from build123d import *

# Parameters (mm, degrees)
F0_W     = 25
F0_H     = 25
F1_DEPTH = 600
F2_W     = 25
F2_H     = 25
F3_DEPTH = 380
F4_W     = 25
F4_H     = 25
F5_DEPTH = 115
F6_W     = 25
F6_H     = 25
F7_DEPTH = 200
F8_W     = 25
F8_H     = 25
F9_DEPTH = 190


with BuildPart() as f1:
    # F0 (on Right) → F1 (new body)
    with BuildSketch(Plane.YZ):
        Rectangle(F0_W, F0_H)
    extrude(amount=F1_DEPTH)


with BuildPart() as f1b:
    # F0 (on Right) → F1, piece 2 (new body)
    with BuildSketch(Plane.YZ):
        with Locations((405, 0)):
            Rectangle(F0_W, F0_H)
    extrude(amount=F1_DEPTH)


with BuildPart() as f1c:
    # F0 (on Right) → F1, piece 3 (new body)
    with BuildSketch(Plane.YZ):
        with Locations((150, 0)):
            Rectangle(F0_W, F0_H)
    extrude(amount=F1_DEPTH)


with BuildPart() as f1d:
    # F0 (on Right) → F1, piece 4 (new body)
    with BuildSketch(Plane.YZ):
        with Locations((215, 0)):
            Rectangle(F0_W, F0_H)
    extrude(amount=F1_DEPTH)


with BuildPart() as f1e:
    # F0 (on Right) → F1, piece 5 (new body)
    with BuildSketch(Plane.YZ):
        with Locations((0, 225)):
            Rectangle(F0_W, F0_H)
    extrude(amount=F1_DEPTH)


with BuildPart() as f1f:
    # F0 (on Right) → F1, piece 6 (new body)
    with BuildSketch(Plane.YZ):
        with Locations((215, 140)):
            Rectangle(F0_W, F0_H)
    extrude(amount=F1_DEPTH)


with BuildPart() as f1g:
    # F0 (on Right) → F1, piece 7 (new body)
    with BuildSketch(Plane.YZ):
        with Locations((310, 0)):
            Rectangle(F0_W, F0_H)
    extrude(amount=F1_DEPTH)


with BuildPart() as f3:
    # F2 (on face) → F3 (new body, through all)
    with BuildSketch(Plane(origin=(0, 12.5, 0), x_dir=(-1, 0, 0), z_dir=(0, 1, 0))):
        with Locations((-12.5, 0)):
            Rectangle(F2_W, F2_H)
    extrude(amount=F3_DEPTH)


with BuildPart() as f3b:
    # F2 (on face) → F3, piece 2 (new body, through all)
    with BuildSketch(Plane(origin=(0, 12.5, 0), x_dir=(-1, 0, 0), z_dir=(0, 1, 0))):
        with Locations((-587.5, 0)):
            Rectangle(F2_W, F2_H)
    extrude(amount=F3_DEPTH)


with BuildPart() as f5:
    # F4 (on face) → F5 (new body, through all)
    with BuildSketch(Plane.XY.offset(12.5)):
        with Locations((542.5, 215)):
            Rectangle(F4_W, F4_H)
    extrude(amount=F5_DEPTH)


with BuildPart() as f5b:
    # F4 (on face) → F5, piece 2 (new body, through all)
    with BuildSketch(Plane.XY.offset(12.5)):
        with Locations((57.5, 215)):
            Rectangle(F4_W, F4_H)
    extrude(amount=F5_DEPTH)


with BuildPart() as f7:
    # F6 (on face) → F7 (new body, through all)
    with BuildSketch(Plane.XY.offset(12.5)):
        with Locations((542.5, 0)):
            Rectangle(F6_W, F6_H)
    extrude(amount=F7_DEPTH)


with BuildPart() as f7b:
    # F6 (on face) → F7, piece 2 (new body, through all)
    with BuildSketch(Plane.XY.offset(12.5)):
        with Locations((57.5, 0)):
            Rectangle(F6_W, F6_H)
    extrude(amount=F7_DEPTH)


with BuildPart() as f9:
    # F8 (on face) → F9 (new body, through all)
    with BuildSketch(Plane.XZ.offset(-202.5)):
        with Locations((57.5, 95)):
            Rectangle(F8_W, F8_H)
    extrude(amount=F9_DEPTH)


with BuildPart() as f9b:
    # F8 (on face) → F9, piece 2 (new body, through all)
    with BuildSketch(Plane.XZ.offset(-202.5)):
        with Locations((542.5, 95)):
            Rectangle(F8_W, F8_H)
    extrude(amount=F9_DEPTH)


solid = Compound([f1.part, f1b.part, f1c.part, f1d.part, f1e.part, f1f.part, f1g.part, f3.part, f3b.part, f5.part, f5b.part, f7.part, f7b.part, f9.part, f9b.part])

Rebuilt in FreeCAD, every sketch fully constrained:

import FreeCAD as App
import Part
import Sketcher
from FreeCAD import Vector
Q = App.Units.Quantity

doc = App.newDocument("Part")
body = doc.addObject("PartDesign::Body", "Body")

# Sketch on YZ plane
sketch1 = doc.addObject("Sketcher::SketchObject", "Sketch")
body.addObject(sketch1)
sketch1.AttachmentSupport = (doc.YZ_Plane, [""])
sketch1.MapMode = "FlatFace"
sketch1.addGeometry([
    Part.LineSegment(Vector(-12, 12, 0), Vector(-12, -12, 0)),
    Part.LineSegment(Vector(-12, -12, 0), Vector(12, -12, 0)),
    Part.LineSegment(Vector(12, -12, 0), Vector(12, 12, 0)),
    Part.LineSegment(Vector(12, 12, 0), Vector(-12, 12, 0)),
], False)
sketch1.addConstraint([
    Sketcher.Constraint("Coincident", 0, 2, 1, 1),
    Sketcher.Constraint("Coincident", 1, 2, 2, 1),
    Sketcher.Constraint("Coincident", 2, 2, 3, 1),
    Sketcher.Constraint("Coincident", 3, 2, 0, 1),
    Sketcher.Constraint("Vertical", 0),
    Sketcher.Constraint("Horizontal", 1),
    Sketcher.Constraint("Vertical", 2),
    Sketcher.Constraint("Horizontal", 3),
    Sketcher.Constraint("Symmetric", 0, 2, 2, 2, -1, 1),
    Sketcher.Constraint("Equal", 3, 0),
    Sketcher.Constraint("DistanceX", 1, 1, 1, 2, Q("25 mm")),
])
pad1 = doc.addObject("PartDesign::Pad", "Pad")
body.addObject(pad1)
pad1.Profile = sketch1
pad1.Length = 600
body2 = doc.addObject("PartDesign::Body", "Body001")

# Sketch on YZ plane
sketch2 = doc.addObject("Sketcher::SketchObject", "Sketch001")
body2.addObject(sketch2)
sketch2.AttachmentSupport = (doc.getObject("YZ_Plane001"), [""])
sketch2.MapMode = "FlatFace"
sketch2.addGeometry([
    Part.LineSegment(Vector(392, 12, 0), Vector(392, -12, 0)),
    Part.LineSegment(Vector(392, -12, 0), Vector(418, -12, 0)),
    Part.LineSegment(Vector(418, -12, 0), Vector(418, 12, 0)),
    Part.LineSegment(Vector(418, 12, 0), Vector(392, 12, 0)),
], False)
sketch2.addConstraint([
    Sketcher.Constraint("Coincident", 0, 2, 1, 1),
    Sketcher.Constraint("Coincident", 1, 2, 2, 1),
    Sketcher.Constraint("Coincident", 2, 2, 3, 1),
    Sketcher.Constraint("Coincident", 3, 2, 0, 1),
    Sketcher.Constraint("Vertical", 0),
    Sketcher.Constraint("Horizontal", 1),
    Sketcher.Constraint("Vertical", 2),
    Sketcher.Constraint("Horizontal", 3),
    Sketcher.Constraint("Equal", 3, 0),
    Sketcher.Constraint("DistanceX", 1, 1, 1, 2, Q("25 mm")),
    Sketcher.Constraint("DistanceX", -1, 1, 0, 2, Q("392.5 mm")),
    Sketcher.Constraint("DistanceY", 0, 2, -1, 1, Q("12.5 mm")),
])
pad2 = doc.addObject("PartDesign::Pad", "Pad001")
body2.addObject(pad2)
pad2.Profile = sketch2
pad2.Length = 600
body3 = doc.addObject("PartDesign::Body", "Body002")

# Sketch on YZ plane
sketch3 = doc.addObject("Sketcher::SketchObject", "Sketch002")
body3.addObject(sketch3)
sketch3.AttachmentSupport = (doc.getObject("YZ_Plane002"), [""])
sketch3.MapMode = "FlatFace"
sketch3.addGeometry([
    Part.LineSegment(Vector(138, 12, 0), Vector(138, -12, 0)),
    Part.LineSegment(Vector(138, -12, 0), Vector(162, -12, 0)),
    Part.LineSegment(Vector(162, -12, 0), Vector(162, 12, 0)),
    Part.LineSegment(Vector(162, 12, 0), Vector(138, 12, 0)),
], False)
sketch3.addConstraint([
    Sketcher.Constraint("Coincident", 0, 2, 1, 1),
    Sketcher.Constraint("Coincident", 1, 2, 2, 1),
    Sketcher.Constraint("Coincident", 2, 2, 3, 1),
    Sketcher.Constraint("Coincident", 3, 2, 0, 1),
    Sketcher.Constraint("Vertical", 0),
    Sketcher.Constraint("Horizontal", 1),
    Sketcher.Constraint("Vertical", 2),
    Sketcher.Constraint("Horizontal", 3),
    Sketcher.Constraint("Equal", 3, 0),
    Sketcher.Constraint("DistanceX", 1, 1, 1, 2, Q("25 mm")),
    Sketcher.Constraint("DistanceX", -1, 1, 0, 2, Q("137.5 mm")),
    Sketcher.Constraint("DistanceY", 0, 2, -1, 1, Q("12.5 mm")),
])
pad3 = doc.addObject("PartDesign::Pad", "Pad002")
body3.addObject(pad3)
pad3.Profile = sketch3
pad3.Length = 600
body4 = doc.addObject("PartDesign::Body", "Body003")

# Sketch on YZ plane
sketch4 = doc.addObject("Sketcher::SketchObject", "Sketch003")
body4.addObject(sketch4)
sketch4.AttachmentSupport = (doc.getObject("YZ_Plane003"), [""])
sketch4.MapMode = "FlatFace"
sketch4.addGeometry([
    Part.LineSegment(Vector(202, 12, 0), Vector(202, -12, 0)),
    Part.LineSegment(Vector(202, -12, 0), Vector(228, -12, 0)),
    Part.LineSegment(Vector(228, -12, 0), Vector(228, 12, 0)),
    Part.LineSegment(Vector(228, 12, 0), Vector(202, 12, 0)),
], False)
sketch4.addConstraint([
    Sketcher.Constraint("Coincident", 0, 2, 1, 1),
    Sketcher.Constraint("Coincident", 1, 2, 2, 1),
    Sketcher.Constraint("Coincident", 2, 2, 3, 1),
    Sketcher.Constraint("Coincident", 3, 2, 0, 1),
    Sketcher.Constraint("Vertical", 0),
    Sketcher.Constraint("Horizontal", 1),
    Sketcher.Constraint("Vertical", 2),
    Sketcher.Constraint("Horizontal", 3),
    Sketcher.Constraint("Equal", 3, 0),
    Sketcher.Constraint("DistanceX", 1, 1, 1, 2, Q("25 mm")),
    Sketcher.Constraint("DistanceX", -1, 1, 0, 2, Q("202.5 mm")),
    Sketcher.Constraint("DistanceY", 0, 2, -1, 1, Q("12.5 mm")),
])
pad4 = doc.addObject("PartDesign::Pad", "Pad003")
body4.addObject(pad4)
pad4.Profile = sketch4
pad4.Length = 600
body5 = doc.addObject("PartDesign::Body", "Body004")

# Sketch on YZ plane
sketch5 = doc.addObject("Sketcher::SketchObject", "Sketch004")
body5.addObject(sketch5)
sketch5.AttachmentSupport = (doc.getObject("YZ_Plane004"), [""])
sketch5.MapMode = "FlatFace"
sketch5.addGeometry([
    Part.LineSegment(Vector(-12, 238, 0), Vector(-12, 212, 0)),
    Part.LineSegment(Vector(-12, 212, 0), Vector(12, 212, 0)),
    Part.LineSegment(Vector(12, 212, 0), Vector(12, 238, 0)),
    Part.LineSegment(Vector(12, 238, 0), Vector(-12, 238, 0)),
], False)
sketch5.addConstraint([
    Sketcher.Constraint("Coincident", 0, 2, 1, 1),
    Sketcher.Constraint("Coincident", 1, 2, 2, 1),
    Sketcher.Constraint("Coincident", 2, 2, 3, 1),
    Sketcher.Constraint("Coincident", 3, 2, 0, 1),
    Sketcher.Constraint("Vertical", 0),
    Sketcher.Constraint("Horizontal", 1),
    Sketcher.Constraint("Vertical", 2),
    Sketcher.Constraint("Horizontal", 3),
    Sketcher.Constraint("Equal", 3, 0),
    Sketcher.Constraint("DistanceX", 1, 1, 1, 2, Q("25 mm")),
    Sketcher.Constraint("DistanceX", 0, 2, -1, 1, Q("12.5 mm")),
    Sketcher.Constraint("DistanceY", -1, 1, 0, 2, Q("212.5 mm")),
])
pad5 = doc.addObject("PartDesign::Pad", "Pad004")
body5.addObject(pad5)
pad5.Profile = sketch5
pad5.Length = 600
body6 = doc.addObject("PartDesign::Body", "Body005")

# Sketch on YZ plane
sketch6 = doc.addObject("Sketcher::SketchObject", "Sketch005")
body6.addObject(sketch6)
sketch6.AttachmentSupport = (doc.getObject("YZ_Plane005"), [""])
sketch6.MapMode = "FlatFace"
sketch6.addGeometry([
    Part.LineSegment(Vector(202, 152, 0), Vector(202, 128, 0)),
    Part.LineSegment(Vector(202, 128, 0), Vector(228, 128, 0)),
    Part.LineSegment(Vector(228, 128, 0), Vector(228, 152, 0)),
    Part.LineSegment(Vector(228, 152, 0), Vector(202, 152, 0)),
], False)
sketch6.addConstraint([
    Sketcher.Constraint("Coincident", 0, 2, 1, 1),
    Sketcher.Constraint("Coincident", 1, 2, 2, 1),
    Sketcher.Constraint("Coincident", 2, 2, 3, 1),
    Sketcher.Constraint("Coincident", 3, 2, 0, 1),
    Sketcher.Constraint("Vertical", 0),
    Sketcher.Constraint("Horizontal", 1),
    Sketcher.Constraint("Vertical", 2),
    Sketcher.Constraint("Horizontal", 3),
    Sketcher.Constraint("Equal", 3, 0),
    Sketcher.Constraint("DistanceX", 1, 1, 1, 2, Q("25 mm")),
    Sketcher.Constraint("DistanceX", -1, 1, 0, 2, Q("202.5 mm")),
    Sketcher.Constraint("DistanceY", -1, 1, 0, 2, Q("127.5 mm")),
])
pad6 = doc.addObject("PartDesign::Pad", "Pad005")
body6.addObject(pad6)
pad6.Profile = sketch6
pad6.Length = 600
body7 = doc.addObject("PartDesign::Body", "Body006")

# Sketch on YZ plane
sketch7 = doc.addObject("Sketcher::SketchObject", "Sketch006")
body7.addObject(sketch7)
sketch7.AttachmentSupport = (doc.getObject("YZ_Plane006"), [""])
sketch7.MapMode = "FlatFace"
sketch7.addGeometry([
    Part.LineSegment(Vector(298, 12, 0), Vector(298, -12, 0)),
    Part.LineSegment(Vector(298, -12, 0), Vector(322, -12, 0)),
    Part.LineSegment(Vector(322, -12, 0), Vector(322, 12, 0)),
    Part.LineSegment(Vector(322, 12, 0), Vector(298, 12, 0)),
], False)
sketch7.addConstraint([
    Sketcher.Constraint("Coincident", 0, 2, 1, 1),
    Sketcher.Constraint("Coincident", 1, 2, 2, 1),
    Sketcher.Constraint("Coincident", 2, 2, 3, 1),
    Sketcher.Constraint("Coincident", 3, 2, 0, 1),
    Sketcher.Constraint("Vertical", 0),
    Sketcher.Constraint("Horizontal", 1),
    Sketcher.Constraint("Vertical", 2),
    Sketcher.Constraint("Horizontal", 3),
    Sketcher.Constraint("Equal", 3, 0),
    Sketcher.Constraint("DistanceX", 1, 1, 1, 2, Q("25 mm")),
    Sketcher.Constraint("DistanceX", -1, 1, 0, 2, Q("297.5 mm")),
    Sketcher.Constraint("DistanceY", 0, 2, -1, 1, Q("12.5 mm")),
])
pad7 = doc.addObject("PartDesign::Pad", "Pad006")
body7.addObject(pad7)
pad7.Profile = sketch7
pad7.Length = 600
body8 = doc.addObject("PartDesign::Body", "Body007")

# Sketch on XZ plane
sketch8 = doc.addObject("Sketcher::SketchObject", "Sketch007")
body8.addObject(sketch8)
sketch8.AttachmentSupport = (doc.getObject("XZ_Plane007"), [""])
sketch8.MapMode = "FlatFace"
sketch8.AttachmentOffset = App.Placement(Vector(0, 0, -12.5), App.Rotation())
sketch8.addGeometry([
    Part.LineSegment(Vector(25, 12, 0), Vector(25, -12, 0)),
    Part.LineSegment(Vector(25, -12, 0), Vector(0, -12, 0)),
    Part.LineSegment(Vector(0, -12, 0), Vector(0, 12, 0)),
    Part.LineSegment(Vector(0, 12, 0), Vector(25, 12, 0)),
], False)
sketch8.addConstraint([
    Sketcher.Constraint("Coincident", 0, 2, 1, 1),
    Sketcher.Constraint("Coincident", 1, 2, 2, 1),
    Sketcher.Constraint("Coincident", 2, 2, 3, 1),
    Sketcher.Constraint("Coincident", 3, 2, 0, 1),
    Sketcher.Constraint("Vertical", 0),
    Sketcher.Constraint("Horizontal", 1),
    Sketcher.Constraint("Vertical", 2),
    Sketcher.Constraint("Horizontal", 3),
    Sketcher.Constraint("Symmetric", 1, 2, 2, 2, -1, 1),
    Sketcher.Constraint("Equal", 3, 0),
    Sketcher.Constraint("DistanceX", 1, 2, 1, 1, Q("25 mm")),
])
pad8 = doc.addObject("PartDesign::Pad", "Pad007")
body8.addObject(pad8)
pad8.Profile = sketch8
pad8.Length = 380
pad8.Reversed = True
body9 = doc.addObject("PartDesign::Body", "Body008")

# Sketch on XZ plane
sketch9 = doc.addObject("Sketcher::SketchObject", "Sketch008")
body9.addObject(sketch9)
sketch9.AttachmentSupport = (doc.getObject("XZ_Plane008"), [""])
sketch9.MapMode = "FlatFace"
sketch9.AttachmentOffset = App.Placement(Vector(0, 0, -12.5), App.Rotation())
sketch9.addGeometry([
    Part.LineSegment(Vector(600, 12, 0), Vector(600, -12, 0)),
    Part.LineSegment(Vector(600, -12, 0), Vector(575, -12, 0)),
    Part.LineSegment(Vector(575, -12, 0), Vector(575, 12, 0)),
    Part.LineSegment(Vector(575, 12, 0), Vector(600, 12, 0)),
], False)
sketch9.addConstraint([
    Sketcher.Constraint("Coincident", 0, 2, 1, 1),
    Sketcher.Constraint("Coincident", 1, 2, 2, 1),
    Sketcher.Constraint("Coincident", 2, 2, 3, 1),
    Sketcher.Constraint("Coincident", 3, 2, 0, 1),
    Sketcher.Constraint("Vertical", 0),
    Sketcher.Constraint("Horizontal", 1),
    Sketcher.Constraint("Vertical", 2),
    Sketcher.Constraint("Horizontal", 3),
    Sketcher.Constraint("Equal", 3, 0),
    Sketcher.Constraint("DistanceX", 1, 2, 1, 1, Q("25 mm")),
    Sketcher.Constraint("DistanceX", -1, 1, 0, 2, Q("600 mm")),
    Sketcher.Constraint("DistanceY", 0, 2, -1, 1, Q("12.5 mm")),
])
pad9 = doc.addObject("PartDesign::Pad", "Pad008")
body9.addObject(pad9)
pad9.Profile = sketch9
pad9.Length = 380
pad9.Reversed = True
body10 = doc.addObject("PartDesign::Body", "Body009")

# Sketch on XY plane
sketch10 = doc.addObject("Sketcher::SketchObject", "Sketch009")
body10.addObject(sketch10)
sketch10.AttachmentSupport = (doc.getObject("XY_Plane009"), [""])
sketch10.MapMode = "FlatFace"
sketch10.AttachmentOffset = App.Placement(Vector(0, 0, 12.5), App.Rotation())
sketch10.addGeometry([
    Part.LineSegment(Vector(530, 228, 0), Vector(530, 202, 0)),
    Part.LineSegment(Vector(530, 202, 0), Vector(555, 202, 0)),
    Part.LineSegment(Vector(555, 202, 0), Vector(555, 228, 0)),
    Part.LineSegment(Vector(555, 228, 0), Vector(530, 228, 0)),
], False)
sketch10.addConstraint([
    Sketcher.Constraint("Coincident", 0, 2, 1, 1),
    Sketcher.Constraint("Coincident", 1, 2, 2, 1),
    Sketcher.Constraint("Coincident", 2, 2, 3, 1),
    Sketcher.Constraint("Coincident", 3, 2, 0, 1),
    Sketcher.Constraint("Vertical", 0),
    Sketcher.Constraint("Horizontal", 1),
    Sketcher.Constraint("Vertical", 2),
    Sketcher.Constraint("Horizontal", 3),
    Sketcher.Constraint("Equal", 3, 0),
    Sketcher.Constraint("DistanceX", 1, 1, 1, 2, Q("25 mm")),
    Sketcher.Constraint("DistanceX", -1, 1, 0, 2, Q("530 mm")),
    Sketcher.Constraint("DistanceY", -1, 1, 0, 2, Q("202.5 mm")),
])
pad10 = doc.addObject("PartDesign::Pad", "Pad009")
body10.addObject(pad10)
pad10.Profile = sketch10
pad10.Length = 115
body11 = doc.addObject("PartDesign::Body", "Body010")

# Sketch on XY plane
sketch11 = doc.addObject("Sketcher::SketchObject", "Sketch010")
body11.addObject(sketch11)
sketch11.AttachmentSupport = (doc.getObject("XY_Plane010"), [""])
sketch11.MapMode = "FlatFace"
sketch11.AttachmentOffset = App.Placement(Vector(0, 0, 12.5), App.Rotation())
sketch11.addGeometry([
    Part.LineSegment(Vector(45, 228, 0), Vector(45, 202, 0)),
    Part.LineSegment(Vector(45, 202, 0), Vector(70, 202, 0)),
    Part.LineSegment(Vector(70, 202, 0), Vector(70, 228, 0)),
    Part.LineSegment(Vector(70, 228, 0), Vector(45, 228, 0)),
], False)
sketch11.addConstraint([
    Sketcher.Constraint("Coincident", 0, 2, 1, 1),
    Sketcher.Constraint("Coincident", 1, 2, 2, 1),
    Sketcher.Constraint("Coincident", 2, 2, 3, 1),
    Sketcher.Constraint("Coincident", 3, 2, 0, 1),
    Sketcher.Constraint("Vertical", 0),
    Sketcher.Constraint("Horizontal", 1),
    Sketcher.Constraint("Vertical", 2),
    Sketcher.Constraint("Horizontal", 3),
    Sketcher.Constraint("Equal", 3, 0),
    Sketcher.Constraint("DistanceX", 1, 1, 1, 2, Q("25 mm")),
    Sketcher.Constraint("DistanceX", -1, 1, 0, 2, Q("45 mm")),
    Sketcher.Constraint("DistanceY", -1, 1, 0, 2, Q("202.5 mm")),
])
pad11 = doc.addObject("PartDesign::Pad", "Pad010")
body11.addObject(pad11)
pad11.Profile = sketch11
pad11.Length = 115
body12 = doc.addObject("PartDesign::Body", "Body011")

# Sketch on XY plane
sketch12 = doc.addObject("Sketcher::SketchObject", "Sketch011")
body12.addObject(sketch12)
sketch12.AttachmentSupport = (doc.getObject("XY_Plane011"), [""])
sketch12.MapMode = "FlatFace"
sketch12.AttachmentOffset = App.Placement(Vector(0, 0, 12.5), App.Rotation())
sketch12.addGeometry([
    Part.LineSegment(Vector(530, 12, 0), Vector(530, -12, 0)),
    Part.LineSegment(Vector(530, -12, 0), Vector(555, -12, 0)),
    Part.LineSegment(Vector(555, -12, 0), Vector(555, 12, 0)),
    Part.LineSegment(Vector(555, 12, 0), Vector(530, 12, 0)),
], False)
sketch12.addConstraint([
    Sketcher.Constraint("Coincident", 0, 2, 1, 1),
    Sketcher.Constraint("Coincident", 1, 2, 2, 1),
    Sketcher.Constraint("Coincident", 2, 2, 3, 1),
    Sketcher.Constraint("Coincident", 3, 2, 0, 1),
    Sketcher.Constraint("Vertical", 0),
    Sketcher.Constraint("Horizontal", 1),
    Sketcher.Constraint("Vertical", 2),
    Sketcher.Constraint("Horizontal", 3),
    Sketcher.Constraint("Equal", 3, 0),
    Sketcher.Constraint("DistanceX", 1, 1, 1, 2, Q("25 mm")),
    Sketcher.Constraint("DistanceX", -1, 1, 0, 2, Q("530 mm")),
    Sketcher.Constraint("DistanceY", 0, 2, -1, 1, Q("12.5 mm")),
])
pad12 = doc.addObject("PartDesign::Pad", "Pad011")
body12.addObject(pad12)
pad12.Profile = sketch12
pad12.Length = 200
body13 = doc.addObject("PartDesign::Body", "Body012")

# Sketch on XY plane
sketch13 = doc.addObject("Sketcher::SketchObject", "Sketch012")
body13.addObject(sketch13)
sketch13.AttachmentSupport = (doc.getObject("XY_Plane012"), [""])
sketch13.MapMode = "FlatFace"
sketch13.AttachmentOffset = App.Placement(Vector(0, 0, 12.5), App.Rotation())
sketch13.addGeometry([
    Part.LineSegment(Vector(45, 12, 0), Vector(45, -12, 0)),
    Part.LineSegment(Vector(45, -12, 0), Vector(70, -12, 0)),
    Part.LineSegment(Vector(70, -12, 0), Vector(70, 12, 0)),
    Part.LineSegment(Vector(70, 12, 0), Vector(45, 12, 0)),
], False)
sketch13.addConstraint([
    Sketcher.Constraint("Coincident", 0, 2, 1, 1),
    Sketcher.Constraint("Coincident", 1, 2, 2, 1),
    Sketcher.Constraint("Coincident", 2, 2, 3, 1),
    Sketcher.Constraint("Coincident", 3, 2, 0, 1),
    Sketcher.Constraint("Vertical", 0),
    Sketcher.Constraint("Horizontal", 1),
    Sketcher.Constraint("Vertical", 2),
    Sketcher.Constraint("Horizontal", 3),
    Sketcher.Constraint("Equal", 3, 0),
    Sketcher.Constraint("DistanceX", 1, 1, 1, 2, Q("25 mm")),
    Sketcher.Constraint("DistanceX", -1, 1, 0, 2, Q("45 mm")),
    Sketcher.Constraint("DistanceY", 0, 2, -1, 1, Q("12.5 mm")),
])
pad13 = doc.addObject("PartDesign::Pad", "Pad012")
body13.addObject(pad13)
pad13.Profile = sketch13
pad13.Length = 200
body14 = doc.addObject("PartDesign::Body", "Body013")

# Sketch on XZ plane
sketch14 = doc.addObject("Sketcher::SketchObject", "Sketch013")
body14.addObject(sketch14)
sketch14.AttachmentSupport = (doc.getObject("XZ_Plane013"), [""])
sketch14.MapMode = "FlatFace"
sketch14.AttachmentOffset = App.Placement(Vector(0, 0, -202.5), App.Rotation())
sketch14.addGeometry([
    Part.LineSegment(Vector(45, 108, 0), Vector(45, 82, 0)),
    Part.LineSegment(Vector(45, 82, 0), Vector(70, 82, 0)),
    Part.LineSegment(Vector(70, 82, 0), Vector(70, 108, 0)),
    Part.LineSegment(Vector(70, 108, 0), Vector(45, 108, 0)),
], False)
sketch14.addConstraint([
    Sketcher.Constraint("Coincident", 0, 2, 1, 1),
    Sketcher.Constraint("Coincident", 1, 2, 2, 1),
    Sketcher.Constraint("Coincident", 2, 2, 3, 1),
    Sketcher.Constraint("Coincident", 3, 2, 0, 1),
    Sketcher.Constraint("Vertical", 0),
    Sketcher.Constraint("Horizontal", 1),
    Sketcher.Constraint("Vertical", 2),
    Sketcher.Constraint("Horizontal", 3),
    Sketcher.Constraint("Equal", 3, 0),
    Sketcher.Constraint("DistanceX", 1, 1, 1, 2, Q("25 mm")),
    Sketcher.Constraint("DistanceX", -1, 1, 0, 2, Q("45 mm")),
    Sketcher.Constraint("DistanceY", -1, 1, 0, 2, Q("82.5 mm")),
])
pad14 = doc.addObject("PartDesign::Pad", "Pad013")
body14.addObject(pad14)
pad14.Profile = sketch14
pad14.Length = 190
body15 = doc.addObject("PartDesign::Body", "Body014")

# Sketch on XZ plane
sketch15 = doc.addObject("Sketcher::SketchObject", "Sketch014")
body15.addObject(sketch15)
sketch15.AttachmentSupport = (doc.getObject("XZ_Plane014"), [""])
sketch15.MapMode = "FlatFace"
sketch15.AttachmentOffset = App.Placement(Vector(0, 0, -202.5), App.Rotation())
sketch15.addGeometry([
    Part.LineSegment(Vector(530, 108, 0), Vector(530, 82, 0)),
    Part.LineSegment(Vector(530, 82, 0), Vector(555, 82, 0)),
    Part.LineSegment(Vector(555, 82, 0), Vector(555, 108, 0)),
    Part.LineSegment(Vector(555, 108, 0), Vector(530, 108, 0)),
], False)
sketch15.addConstraint([
    Sketcher.Constraint("Coincident", 0, 2, 1, 1),
    Sketcher.Constraint("Coincident", 1, 2, 2, 1),
    Sketcher.Constraint("Coincident", 2, 2, 3, 1),
    Sketcher.Constraint("Coincident", 3, 2, 0, 1),
    Sketcher.Constraint("Vertical", 0),
    Sketcher.Constraint("Horizontal", 1),
    Sketcher.Constraint("Vertical", 2),
    Sketcher.Constraint("Horizontal", 3),
    Sketcher.Constraint("Equal", 3, 0),
    Sketcher.Constraint("DistanceX", 1, 1, 1, 2, Q("25 mm")),
    Sketcher.Constraint("DistanceX", -1, 1, 0, 2, Q("530 mm")),
    Sketcher.Constraint("DistanceY", -1, 1, 0, 2, Q("82.5 mm")),
])
pad15 = doc.addObject("PartDesign::Pad", "Pad014")
body15.addObject(pad15)
pad15.Profile = sketch15
pad15.Length = 190

doc.recompute()
